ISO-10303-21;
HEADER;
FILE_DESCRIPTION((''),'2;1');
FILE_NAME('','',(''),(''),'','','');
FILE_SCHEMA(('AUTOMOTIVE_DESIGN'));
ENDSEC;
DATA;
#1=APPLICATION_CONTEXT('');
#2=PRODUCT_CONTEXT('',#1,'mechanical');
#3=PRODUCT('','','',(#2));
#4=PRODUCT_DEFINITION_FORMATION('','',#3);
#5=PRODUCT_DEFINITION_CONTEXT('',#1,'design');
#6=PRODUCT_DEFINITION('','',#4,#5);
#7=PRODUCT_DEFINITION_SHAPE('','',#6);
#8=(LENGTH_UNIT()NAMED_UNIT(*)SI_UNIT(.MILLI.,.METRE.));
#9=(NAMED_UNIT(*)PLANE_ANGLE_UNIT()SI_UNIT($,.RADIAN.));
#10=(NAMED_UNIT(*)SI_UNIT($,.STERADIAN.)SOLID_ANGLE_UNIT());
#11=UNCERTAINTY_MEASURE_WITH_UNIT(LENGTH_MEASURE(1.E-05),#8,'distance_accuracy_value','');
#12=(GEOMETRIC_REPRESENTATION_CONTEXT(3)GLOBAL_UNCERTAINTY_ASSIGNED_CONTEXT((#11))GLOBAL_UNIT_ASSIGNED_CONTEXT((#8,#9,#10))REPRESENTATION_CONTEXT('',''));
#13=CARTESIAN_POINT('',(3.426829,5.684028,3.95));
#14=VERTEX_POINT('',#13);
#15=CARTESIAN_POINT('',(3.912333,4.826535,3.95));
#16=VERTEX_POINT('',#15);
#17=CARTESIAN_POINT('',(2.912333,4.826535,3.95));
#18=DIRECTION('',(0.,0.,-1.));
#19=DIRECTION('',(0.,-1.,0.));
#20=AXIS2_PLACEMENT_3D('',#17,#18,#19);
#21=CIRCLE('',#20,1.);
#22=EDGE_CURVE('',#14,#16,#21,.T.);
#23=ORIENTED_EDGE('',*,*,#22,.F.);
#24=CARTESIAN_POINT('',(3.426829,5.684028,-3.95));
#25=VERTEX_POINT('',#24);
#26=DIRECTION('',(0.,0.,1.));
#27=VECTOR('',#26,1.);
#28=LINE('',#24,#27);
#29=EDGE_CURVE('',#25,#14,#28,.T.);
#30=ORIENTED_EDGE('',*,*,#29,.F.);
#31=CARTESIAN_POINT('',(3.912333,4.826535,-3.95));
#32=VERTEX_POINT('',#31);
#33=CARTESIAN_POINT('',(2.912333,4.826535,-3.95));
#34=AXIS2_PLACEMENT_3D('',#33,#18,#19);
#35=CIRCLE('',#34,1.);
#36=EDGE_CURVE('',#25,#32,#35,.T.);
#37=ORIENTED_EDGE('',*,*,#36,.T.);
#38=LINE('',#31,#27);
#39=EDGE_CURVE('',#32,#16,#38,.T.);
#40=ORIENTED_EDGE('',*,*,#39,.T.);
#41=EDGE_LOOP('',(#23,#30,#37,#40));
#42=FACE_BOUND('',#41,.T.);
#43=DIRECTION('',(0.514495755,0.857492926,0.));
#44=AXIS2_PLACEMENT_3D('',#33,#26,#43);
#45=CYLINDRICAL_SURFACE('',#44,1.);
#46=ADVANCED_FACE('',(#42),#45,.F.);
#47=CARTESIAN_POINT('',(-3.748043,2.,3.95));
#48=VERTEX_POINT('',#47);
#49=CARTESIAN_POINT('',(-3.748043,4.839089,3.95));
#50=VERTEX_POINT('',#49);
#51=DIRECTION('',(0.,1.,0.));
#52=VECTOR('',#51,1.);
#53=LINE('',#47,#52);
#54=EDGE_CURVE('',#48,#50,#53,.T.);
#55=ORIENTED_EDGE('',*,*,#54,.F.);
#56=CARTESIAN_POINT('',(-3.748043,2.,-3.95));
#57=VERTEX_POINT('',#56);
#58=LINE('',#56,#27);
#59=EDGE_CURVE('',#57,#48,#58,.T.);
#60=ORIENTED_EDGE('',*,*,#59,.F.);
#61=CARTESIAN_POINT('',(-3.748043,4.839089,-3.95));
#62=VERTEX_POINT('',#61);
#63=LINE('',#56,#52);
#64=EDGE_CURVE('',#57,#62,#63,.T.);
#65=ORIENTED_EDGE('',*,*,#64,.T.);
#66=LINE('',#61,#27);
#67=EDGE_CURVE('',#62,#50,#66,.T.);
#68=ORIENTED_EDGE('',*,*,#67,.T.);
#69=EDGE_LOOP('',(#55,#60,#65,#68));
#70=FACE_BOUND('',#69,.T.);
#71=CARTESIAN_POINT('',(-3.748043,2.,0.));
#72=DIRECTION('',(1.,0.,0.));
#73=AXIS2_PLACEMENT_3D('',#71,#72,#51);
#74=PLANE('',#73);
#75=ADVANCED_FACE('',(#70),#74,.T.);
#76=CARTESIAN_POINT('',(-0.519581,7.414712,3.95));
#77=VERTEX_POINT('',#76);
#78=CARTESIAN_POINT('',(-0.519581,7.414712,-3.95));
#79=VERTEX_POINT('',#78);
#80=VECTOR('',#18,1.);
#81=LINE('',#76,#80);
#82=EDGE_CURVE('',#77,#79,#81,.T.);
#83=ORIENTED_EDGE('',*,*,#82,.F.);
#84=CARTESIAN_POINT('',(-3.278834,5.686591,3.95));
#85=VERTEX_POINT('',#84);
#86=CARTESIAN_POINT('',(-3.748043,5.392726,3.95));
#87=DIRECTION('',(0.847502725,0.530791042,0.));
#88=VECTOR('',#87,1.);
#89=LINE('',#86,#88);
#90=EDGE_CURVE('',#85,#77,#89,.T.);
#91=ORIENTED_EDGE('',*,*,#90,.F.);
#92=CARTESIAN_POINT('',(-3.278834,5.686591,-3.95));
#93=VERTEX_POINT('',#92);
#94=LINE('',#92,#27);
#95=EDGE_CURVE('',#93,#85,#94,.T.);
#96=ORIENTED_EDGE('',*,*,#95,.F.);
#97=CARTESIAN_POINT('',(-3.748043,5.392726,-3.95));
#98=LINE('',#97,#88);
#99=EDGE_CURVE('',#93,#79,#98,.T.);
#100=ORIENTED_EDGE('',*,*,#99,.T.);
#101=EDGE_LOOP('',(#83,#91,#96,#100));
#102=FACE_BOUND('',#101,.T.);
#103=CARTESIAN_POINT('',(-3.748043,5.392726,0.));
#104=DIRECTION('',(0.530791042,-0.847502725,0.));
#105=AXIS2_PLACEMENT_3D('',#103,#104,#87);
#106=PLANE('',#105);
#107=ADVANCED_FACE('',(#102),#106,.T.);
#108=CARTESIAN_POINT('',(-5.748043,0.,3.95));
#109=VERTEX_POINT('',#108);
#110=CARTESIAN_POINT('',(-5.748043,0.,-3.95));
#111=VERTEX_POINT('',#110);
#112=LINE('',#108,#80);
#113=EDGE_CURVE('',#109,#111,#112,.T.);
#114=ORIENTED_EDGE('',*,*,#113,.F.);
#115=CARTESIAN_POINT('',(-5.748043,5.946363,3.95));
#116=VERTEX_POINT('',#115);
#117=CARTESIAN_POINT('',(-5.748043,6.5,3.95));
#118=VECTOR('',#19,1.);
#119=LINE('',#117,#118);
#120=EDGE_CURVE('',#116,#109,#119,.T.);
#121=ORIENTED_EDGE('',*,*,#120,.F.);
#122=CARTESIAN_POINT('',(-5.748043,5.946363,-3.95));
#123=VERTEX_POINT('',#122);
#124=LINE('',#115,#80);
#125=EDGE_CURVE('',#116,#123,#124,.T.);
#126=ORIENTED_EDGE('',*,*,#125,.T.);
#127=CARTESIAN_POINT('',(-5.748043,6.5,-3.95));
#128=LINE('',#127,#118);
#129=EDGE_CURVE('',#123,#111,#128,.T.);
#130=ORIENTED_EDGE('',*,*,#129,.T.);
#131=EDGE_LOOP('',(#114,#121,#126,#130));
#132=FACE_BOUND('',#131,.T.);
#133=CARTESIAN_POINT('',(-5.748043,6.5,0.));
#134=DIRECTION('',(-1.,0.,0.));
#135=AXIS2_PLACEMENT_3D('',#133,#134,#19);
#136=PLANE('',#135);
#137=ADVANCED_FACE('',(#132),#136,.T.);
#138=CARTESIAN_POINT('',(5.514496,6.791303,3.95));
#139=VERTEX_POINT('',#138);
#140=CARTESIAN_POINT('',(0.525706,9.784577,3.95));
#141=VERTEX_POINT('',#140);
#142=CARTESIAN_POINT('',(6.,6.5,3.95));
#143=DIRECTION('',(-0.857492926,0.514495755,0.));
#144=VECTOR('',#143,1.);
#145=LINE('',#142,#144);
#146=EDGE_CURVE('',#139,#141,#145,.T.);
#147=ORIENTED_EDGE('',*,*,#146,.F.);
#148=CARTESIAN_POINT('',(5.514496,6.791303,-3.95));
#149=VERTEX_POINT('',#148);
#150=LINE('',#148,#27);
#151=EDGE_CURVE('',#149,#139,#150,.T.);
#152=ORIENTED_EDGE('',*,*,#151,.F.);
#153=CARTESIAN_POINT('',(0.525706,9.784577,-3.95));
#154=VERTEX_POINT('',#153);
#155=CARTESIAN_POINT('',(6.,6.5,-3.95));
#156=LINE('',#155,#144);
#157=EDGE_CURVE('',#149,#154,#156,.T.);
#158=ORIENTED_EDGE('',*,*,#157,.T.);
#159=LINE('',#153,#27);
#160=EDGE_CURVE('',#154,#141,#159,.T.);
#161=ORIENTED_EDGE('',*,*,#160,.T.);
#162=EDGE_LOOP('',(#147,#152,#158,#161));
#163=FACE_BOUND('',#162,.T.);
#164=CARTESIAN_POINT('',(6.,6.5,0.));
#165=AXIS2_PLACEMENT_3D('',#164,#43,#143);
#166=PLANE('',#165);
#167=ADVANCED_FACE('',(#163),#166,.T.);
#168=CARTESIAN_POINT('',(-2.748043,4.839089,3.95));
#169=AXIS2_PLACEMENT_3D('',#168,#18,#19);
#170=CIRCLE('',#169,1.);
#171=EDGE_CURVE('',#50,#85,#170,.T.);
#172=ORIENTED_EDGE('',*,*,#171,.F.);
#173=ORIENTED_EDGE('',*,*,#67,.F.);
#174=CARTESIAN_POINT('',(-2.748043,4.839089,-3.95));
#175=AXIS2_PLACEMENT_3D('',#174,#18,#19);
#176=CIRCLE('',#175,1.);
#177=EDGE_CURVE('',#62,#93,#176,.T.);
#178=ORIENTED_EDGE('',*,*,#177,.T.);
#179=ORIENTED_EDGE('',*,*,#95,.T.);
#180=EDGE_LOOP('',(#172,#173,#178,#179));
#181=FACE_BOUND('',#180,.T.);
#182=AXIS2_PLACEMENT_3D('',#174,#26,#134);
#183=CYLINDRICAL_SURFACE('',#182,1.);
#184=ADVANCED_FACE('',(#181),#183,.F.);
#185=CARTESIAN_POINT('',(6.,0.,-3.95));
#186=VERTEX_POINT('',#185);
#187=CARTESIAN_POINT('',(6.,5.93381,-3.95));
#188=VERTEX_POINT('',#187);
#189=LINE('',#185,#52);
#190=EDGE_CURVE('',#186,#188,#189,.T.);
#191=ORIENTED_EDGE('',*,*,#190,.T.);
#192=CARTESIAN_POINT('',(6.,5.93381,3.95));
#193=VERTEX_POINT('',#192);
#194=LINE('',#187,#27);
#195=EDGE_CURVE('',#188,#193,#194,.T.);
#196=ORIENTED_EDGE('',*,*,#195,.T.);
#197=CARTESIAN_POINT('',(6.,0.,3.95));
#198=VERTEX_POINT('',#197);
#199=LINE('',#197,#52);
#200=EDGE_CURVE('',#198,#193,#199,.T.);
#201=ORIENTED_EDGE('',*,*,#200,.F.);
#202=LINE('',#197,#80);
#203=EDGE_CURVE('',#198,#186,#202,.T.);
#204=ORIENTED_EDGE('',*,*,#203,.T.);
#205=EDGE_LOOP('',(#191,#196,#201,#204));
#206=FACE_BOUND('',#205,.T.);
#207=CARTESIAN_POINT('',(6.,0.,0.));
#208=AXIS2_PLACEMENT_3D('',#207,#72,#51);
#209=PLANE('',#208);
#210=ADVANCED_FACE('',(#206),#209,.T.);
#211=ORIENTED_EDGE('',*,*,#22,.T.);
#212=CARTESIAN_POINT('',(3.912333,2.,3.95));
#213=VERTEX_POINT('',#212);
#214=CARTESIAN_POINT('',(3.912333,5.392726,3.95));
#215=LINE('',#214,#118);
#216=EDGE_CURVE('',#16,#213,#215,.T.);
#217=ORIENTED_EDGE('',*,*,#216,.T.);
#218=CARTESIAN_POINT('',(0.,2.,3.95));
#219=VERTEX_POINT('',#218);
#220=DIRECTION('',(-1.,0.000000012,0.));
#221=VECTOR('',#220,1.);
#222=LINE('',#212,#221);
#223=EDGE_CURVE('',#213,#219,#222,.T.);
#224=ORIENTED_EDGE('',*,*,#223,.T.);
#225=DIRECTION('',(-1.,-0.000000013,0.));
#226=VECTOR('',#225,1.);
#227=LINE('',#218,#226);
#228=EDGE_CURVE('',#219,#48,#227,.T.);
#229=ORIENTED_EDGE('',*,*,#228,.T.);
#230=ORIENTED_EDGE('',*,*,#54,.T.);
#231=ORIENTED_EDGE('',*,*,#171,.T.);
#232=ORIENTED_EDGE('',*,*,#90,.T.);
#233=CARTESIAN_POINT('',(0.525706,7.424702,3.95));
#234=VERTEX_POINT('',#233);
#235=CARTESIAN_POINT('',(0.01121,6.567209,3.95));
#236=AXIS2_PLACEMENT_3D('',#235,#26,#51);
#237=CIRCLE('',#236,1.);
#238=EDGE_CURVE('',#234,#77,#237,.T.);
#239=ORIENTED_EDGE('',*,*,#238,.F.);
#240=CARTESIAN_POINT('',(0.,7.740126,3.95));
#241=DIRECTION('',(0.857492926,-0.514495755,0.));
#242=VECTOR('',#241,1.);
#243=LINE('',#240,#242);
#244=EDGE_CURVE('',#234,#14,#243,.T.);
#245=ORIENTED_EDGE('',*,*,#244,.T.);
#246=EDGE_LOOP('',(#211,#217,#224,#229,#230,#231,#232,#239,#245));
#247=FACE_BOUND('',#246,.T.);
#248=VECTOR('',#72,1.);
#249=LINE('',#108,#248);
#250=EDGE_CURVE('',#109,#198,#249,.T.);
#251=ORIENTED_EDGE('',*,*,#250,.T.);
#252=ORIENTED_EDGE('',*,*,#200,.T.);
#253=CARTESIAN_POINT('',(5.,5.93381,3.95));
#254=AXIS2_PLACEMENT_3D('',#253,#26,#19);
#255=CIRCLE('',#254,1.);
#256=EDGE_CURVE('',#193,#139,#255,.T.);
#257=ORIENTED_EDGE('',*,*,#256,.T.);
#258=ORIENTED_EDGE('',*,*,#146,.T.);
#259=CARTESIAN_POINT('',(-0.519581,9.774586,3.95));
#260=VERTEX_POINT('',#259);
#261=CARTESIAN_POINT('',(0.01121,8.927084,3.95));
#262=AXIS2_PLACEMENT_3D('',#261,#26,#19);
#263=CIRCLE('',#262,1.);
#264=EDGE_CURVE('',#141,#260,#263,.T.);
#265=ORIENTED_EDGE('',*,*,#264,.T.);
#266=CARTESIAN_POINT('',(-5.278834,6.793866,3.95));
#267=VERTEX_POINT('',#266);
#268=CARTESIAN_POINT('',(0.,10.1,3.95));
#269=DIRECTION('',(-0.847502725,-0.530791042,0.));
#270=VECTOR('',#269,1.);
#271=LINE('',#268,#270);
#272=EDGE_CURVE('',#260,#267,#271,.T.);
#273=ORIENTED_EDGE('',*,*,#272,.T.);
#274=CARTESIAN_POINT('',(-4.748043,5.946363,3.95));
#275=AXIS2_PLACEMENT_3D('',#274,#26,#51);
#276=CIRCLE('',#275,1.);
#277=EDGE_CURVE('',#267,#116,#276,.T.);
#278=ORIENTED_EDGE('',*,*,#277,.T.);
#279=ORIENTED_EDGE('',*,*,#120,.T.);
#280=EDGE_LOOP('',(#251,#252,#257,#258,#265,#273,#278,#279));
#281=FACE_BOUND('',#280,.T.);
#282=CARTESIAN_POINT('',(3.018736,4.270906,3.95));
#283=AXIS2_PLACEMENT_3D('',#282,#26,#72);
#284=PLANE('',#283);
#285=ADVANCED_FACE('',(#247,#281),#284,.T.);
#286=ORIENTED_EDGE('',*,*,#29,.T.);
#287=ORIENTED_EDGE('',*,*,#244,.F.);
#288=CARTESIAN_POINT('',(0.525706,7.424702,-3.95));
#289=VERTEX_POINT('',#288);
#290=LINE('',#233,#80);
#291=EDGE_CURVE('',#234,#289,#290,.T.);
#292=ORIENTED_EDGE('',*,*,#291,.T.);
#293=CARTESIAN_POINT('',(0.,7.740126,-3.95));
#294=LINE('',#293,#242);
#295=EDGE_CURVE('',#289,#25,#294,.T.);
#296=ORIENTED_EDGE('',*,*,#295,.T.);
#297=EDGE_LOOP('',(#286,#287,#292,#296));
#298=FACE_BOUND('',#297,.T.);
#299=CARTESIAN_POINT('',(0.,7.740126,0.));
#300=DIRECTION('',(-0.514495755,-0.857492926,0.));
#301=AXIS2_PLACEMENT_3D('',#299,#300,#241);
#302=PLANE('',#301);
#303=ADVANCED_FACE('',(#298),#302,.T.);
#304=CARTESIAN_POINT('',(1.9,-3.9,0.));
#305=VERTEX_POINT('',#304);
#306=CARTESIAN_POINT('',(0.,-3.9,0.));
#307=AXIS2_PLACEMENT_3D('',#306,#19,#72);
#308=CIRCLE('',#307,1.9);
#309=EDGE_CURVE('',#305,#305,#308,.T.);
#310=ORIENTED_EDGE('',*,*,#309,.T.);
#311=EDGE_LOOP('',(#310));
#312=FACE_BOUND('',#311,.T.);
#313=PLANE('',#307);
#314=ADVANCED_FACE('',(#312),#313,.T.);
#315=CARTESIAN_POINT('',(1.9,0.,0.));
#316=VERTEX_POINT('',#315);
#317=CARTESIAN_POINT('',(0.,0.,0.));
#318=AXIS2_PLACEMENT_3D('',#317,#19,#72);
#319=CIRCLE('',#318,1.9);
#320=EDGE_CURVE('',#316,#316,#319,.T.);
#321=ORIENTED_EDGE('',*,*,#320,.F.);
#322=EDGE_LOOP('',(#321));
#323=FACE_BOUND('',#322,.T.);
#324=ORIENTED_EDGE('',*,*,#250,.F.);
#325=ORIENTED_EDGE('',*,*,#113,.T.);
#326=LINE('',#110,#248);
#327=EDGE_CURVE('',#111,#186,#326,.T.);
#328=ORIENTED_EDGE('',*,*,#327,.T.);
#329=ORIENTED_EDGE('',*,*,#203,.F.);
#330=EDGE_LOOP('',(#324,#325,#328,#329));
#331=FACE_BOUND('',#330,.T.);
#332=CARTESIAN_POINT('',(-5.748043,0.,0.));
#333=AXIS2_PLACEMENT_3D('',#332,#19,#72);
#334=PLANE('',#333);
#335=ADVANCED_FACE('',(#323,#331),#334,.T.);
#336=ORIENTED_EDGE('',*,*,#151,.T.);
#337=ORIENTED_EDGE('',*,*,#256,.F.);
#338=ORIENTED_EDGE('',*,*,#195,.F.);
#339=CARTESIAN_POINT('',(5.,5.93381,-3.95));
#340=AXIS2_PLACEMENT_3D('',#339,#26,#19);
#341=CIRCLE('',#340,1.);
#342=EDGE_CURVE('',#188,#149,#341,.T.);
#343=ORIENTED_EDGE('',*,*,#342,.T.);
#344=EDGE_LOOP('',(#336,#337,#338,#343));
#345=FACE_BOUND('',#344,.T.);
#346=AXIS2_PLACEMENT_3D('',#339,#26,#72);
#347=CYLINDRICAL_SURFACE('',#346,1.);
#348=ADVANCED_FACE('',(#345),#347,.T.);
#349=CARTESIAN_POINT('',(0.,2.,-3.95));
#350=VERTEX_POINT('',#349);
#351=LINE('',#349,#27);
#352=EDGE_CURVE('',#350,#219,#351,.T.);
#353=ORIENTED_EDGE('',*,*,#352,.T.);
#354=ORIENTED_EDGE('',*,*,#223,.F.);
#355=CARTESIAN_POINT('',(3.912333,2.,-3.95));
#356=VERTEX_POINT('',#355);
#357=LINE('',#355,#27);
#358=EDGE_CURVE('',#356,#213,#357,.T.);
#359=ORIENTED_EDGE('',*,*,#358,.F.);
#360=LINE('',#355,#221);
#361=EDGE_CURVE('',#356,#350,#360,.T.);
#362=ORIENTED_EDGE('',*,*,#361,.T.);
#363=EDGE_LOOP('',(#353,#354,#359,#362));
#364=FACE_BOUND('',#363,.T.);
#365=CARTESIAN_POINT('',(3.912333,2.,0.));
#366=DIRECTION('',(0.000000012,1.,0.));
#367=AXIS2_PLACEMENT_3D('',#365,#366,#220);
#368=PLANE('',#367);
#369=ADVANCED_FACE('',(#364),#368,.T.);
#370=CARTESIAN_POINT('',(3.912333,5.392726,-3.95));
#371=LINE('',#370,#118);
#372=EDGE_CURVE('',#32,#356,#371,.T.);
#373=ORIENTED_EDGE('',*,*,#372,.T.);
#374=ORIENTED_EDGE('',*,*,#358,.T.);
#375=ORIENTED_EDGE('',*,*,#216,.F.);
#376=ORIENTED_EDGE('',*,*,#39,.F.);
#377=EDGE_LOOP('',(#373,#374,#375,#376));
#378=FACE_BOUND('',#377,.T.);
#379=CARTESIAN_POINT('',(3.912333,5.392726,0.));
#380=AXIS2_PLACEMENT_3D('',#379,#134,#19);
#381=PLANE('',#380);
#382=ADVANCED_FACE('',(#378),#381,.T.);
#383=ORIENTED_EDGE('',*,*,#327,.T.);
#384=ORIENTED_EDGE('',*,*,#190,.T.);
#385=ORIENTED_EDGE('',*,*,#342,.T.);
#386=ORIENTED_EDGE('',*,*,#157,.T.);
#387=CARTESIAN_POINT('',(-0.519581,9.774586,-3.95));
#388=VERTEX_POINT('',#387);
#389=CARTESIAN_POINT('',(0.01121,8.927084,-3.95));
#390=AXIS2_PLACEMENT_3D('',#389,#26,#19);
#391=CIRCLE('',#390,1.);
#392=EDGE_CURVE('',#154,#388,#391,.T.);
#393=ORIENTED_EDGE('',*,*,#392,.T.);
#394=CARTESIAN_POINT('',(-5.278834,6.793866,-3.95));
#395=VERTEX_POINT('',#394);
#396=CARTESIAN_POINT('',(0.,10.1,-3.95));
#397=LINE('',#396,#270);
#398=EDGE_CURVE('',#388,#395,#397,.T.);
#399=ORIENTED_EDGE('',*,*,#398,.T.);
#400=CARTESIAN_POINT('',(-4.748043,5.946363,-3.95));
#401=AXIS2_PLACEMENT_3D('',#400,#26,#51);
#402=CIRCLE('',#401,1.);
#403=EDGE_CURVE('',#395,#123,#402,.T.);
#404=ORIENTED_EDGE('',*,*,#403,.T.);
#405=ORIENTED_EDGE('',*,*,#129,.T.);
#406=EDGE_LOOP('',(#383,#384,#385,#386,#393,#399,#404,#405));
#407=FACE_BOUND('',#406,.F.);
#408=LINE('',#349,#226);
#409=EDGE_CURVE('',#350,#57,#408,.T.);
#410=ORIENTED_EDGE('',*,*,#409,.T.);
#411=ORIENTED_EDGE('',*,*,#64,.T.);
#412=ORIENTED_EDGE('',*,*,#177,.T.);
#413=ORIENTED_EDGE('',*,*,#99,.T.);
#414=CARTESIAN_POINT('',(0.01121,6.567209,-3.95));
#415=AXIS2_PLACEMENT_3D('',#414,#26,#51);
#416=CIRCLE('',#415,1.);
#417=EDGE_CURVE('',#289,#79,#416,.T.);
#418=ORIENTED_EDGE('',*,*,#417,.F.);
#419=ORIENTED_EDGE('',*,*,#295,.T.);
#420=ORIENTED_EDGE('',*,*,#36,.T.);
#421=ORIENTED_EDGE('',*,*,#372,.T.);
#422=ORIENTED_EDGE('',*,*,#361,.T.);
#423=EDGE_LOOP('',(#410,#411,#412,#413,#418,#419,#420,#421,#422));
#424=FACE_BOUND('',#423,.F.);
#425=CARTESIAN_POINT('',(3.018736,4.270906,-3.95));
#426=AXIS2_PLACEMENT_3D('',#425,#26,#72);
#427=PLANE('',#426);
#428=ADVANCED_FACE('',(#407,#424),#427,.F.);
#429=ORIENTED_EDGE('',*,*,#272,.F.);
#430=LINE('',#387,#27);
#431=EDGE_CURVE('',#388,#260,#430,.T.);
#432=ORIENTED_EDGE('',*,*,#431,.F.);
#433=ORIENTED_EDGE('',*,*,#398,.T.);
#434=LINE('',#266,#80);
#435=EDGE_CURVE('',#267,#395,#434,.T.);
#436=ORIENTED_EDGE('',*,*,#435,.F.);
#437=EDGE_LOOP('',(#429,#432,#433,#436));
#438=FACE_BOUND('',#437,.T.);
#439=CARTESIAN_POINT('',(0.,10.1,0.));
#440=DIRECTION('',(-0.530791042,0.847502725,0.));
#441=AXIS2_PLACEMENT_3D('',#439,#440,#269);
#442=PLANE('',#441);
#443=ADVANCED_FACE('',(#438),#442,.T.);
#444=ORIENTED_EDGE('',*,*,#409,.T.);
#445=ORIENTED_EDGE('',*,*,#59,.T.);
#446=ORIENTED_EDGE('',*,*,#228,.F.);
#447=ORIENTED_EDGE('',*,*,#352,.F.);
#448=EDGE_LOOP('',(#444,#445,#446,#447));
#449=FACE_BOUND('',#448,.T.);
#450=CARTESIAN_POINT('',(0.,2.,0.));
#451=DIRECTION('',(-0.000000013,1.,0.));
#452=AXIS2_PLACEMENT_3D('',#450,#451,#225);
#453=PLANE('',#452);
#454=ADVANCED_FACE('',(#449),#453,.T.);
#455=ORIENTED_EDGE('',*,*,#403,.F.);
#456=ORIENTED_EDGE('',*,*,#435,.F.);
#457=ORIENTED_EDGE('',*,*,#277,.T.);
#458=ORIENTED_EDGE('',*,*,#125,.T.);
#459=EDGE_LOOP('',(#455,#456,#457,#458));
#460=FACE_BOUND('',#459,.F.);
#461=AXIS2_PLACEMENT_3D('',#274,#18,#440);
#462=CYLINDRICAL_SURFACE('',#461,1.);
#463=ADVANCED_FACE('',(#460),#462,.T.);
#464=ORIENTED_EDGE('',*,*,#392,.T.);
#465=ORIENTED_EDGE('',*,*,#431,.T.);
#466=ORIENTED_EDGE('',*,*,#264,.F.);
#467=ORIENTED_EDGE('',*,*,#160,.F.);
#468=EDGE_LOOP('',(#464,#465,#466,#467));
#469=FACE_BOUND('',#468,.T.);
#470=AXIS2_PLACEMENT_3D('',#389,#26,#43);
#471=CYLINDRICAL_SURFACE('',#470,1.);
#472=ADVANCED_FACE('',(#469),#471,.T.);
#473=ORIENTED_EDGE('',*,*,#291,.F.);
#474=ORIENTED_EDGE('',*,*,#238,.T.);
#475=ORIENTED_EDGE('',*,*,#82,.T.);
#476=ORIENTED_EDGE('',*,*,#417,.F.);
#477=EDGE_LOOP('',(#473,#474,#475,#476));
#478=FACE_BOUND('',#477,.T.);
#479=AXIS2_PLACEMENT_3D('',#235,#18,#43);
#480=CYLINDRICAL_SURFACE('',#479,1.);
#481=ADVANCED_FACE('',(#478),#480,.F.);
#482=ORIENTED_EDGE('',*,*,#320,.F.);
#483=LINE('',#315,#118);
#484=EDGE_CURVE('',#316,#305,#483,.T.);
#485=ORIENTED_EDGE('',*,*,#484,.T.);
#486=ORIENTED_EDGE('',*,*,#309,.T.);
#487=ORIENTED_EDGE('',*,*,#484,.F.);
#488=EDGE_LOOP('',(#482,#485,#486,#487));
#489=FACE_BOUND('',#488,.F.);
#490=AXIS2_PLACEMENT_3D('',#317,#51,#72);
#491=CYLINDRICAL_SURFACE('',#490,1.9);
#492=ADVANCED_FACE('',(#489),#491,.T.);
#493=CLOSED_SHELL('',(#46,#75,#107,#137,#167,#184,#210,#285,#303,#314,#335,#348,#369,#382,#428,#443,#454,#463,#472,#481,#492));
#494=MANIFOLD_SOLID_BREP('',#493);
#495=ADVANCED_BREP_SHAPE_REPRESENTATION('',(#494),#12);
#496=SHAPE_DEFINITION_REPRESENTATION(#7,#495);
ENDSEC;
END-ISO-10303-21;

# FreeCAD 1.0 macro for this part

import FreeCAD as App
import Part
import Sketcher

V = App.Vector


def edges_at(feature, points):
    """Names of the edges that pass closest to the given points."""
    edges = feature.Shape.Edges
    near = lambda p: min(range(len(edges)), key=lambda i: edges[i].distToShape(Part.Vertex(*p))[0])
    return sorted({f"Edge{near(p) + 1}" for p in points})


def add_polygon(sketch, points):
    """Adds a closed chain of lines whose ends are joined by coincident constraints."""
    first, n = sketch.GeometryCount, len(points)
    for a, b in zip(points, points[1:] + points[:1]):
        sketch.addGeometry(Part.LineSegment(App.Vector(*a, 0), App.Vector(*b, 0)), False)
    for i in range(n):
        sketch.addConstraint(Sketcher.Constraint("Coincident", first + i, 2, first + (i + 1) % n, 1))

doc = App.newDocument("Part")
body = doc.addObject("PartDesign::Body", "Body")

# Sketch on XY plane
sketch1 = body.newObject("Sketcher::SketchObject", "Sketch")
sketch1.AttachmentSupport = (doc.getObject("XY_Plane"), [""])
sketch1.MapMode = "FlatFace"
add_polygon(sketch1, [(6, 0), (6, 6.5), (0, 10.1), (-5.748043, 6.5), (-5.748043, 0)])  # lines 0-4
add_polygon(sketch1, [(0, 7.740126), (3.912333, 5.392726), (3.912333, 2), (0, 2), (-3.748043, 2), (-3.748043, 5.392726)])  # lines 5-10
sketch1.addConstraint([
    Sketcher.Constraint("Vertical", 0),
    Sketcher.Constraint("Vertical", 3),
    Sketcher.Constraint("Horizontal", 4),
    Sketcher.Constraint("Vertical", 6),
    Sketcher.Constraint("Horizontal", 7),
    Sketcher.Constraint("Horizontal", 8),
    Sketcher.Constraint("Vertical", 9),
    Sketcher.Constraint("PointOnObject", 1, 2, -2),
    Sketcher.Constraint("PointOnObject", 3, 2, -1),
    Sketcher.Constraint("PointOnObject", 7, 2, -2),
    Sketcher.Constraint("PointOnObject", 10, 2, -2),
    Sketcher.Constraint("Parallel", 1, 5),
    Sketcher.Constraint("Parallel", 2, 10),
    Sketcher.Constraint("Horizontal", 0, 2, 2, 2),
    Sketcher.Constraint("Horizontal", 5, 2, 9, 2),
    Sketcher.Constraint("DistanceY", 0, 1, 0, 2, 6.5),
    Sketcher.Constraint("DistanceX", -1, 1, 0, 2, 6.0),
    Sketcher.Constraint("DistanceY", -1, 1, 6, 2, 2.0),
    Sketcher.Constraint("DistanceX", 3, 2, 8, 2, 2.0),
    Sketcher.Constraint("DistanceY", -1, 1, 1, 2, 10.1),
    Sketcher.Constraint("DistanceY", 9, 2, 10, 2, 2.3474),
    Sketcher.Constraint("DistanceY", 6, 2, 6, 1, 3.392726),
])
pad1 = body.newObject("PartDesign::Pad", "Pad")
pad1.Profile = sketch1
pad1.Length = 7.9
pad1.Midplane = True

# Sketch on XZ plane
sketch2 = body.newObject("Sketcher::SketchObject", "Sketch001")
sketch2.AttachmentSupport = (doc.getObject("XZ_Plane"), [""])
sketch2.MapMode = "FlatFace"
sketch2.addGeometry(Part.Circle(V(0, 0, 0), V(0, 0, 1), 1.9), False)
sketch2.addConstraint([
    Sketcher.Constraint("Coincident", 0, 3, -1, 1),
    Sketcher.Constraint("Diameter", 0, 3.8),
])
pad2 = body.newObject("PartDesign::Pad", "Pad001")
pad2.Profile = sketch2
pad2.Length = 3.9
doc.recompute()

fillet = body.newObject("PartDesign::Fillet", "Fillet")
fillet.Base = (pad2, edges_at(pad2, [
    (0, 10.1, 0),
    (-5.748, 6.5, 0),
    (6, 6.5, 0),
    (-3.748, 5.393, 0),
    (3.912, 5.393, 0),
    (0, 7.74, 0),
]))
fillet.Radius = 1

doc.recompute()
